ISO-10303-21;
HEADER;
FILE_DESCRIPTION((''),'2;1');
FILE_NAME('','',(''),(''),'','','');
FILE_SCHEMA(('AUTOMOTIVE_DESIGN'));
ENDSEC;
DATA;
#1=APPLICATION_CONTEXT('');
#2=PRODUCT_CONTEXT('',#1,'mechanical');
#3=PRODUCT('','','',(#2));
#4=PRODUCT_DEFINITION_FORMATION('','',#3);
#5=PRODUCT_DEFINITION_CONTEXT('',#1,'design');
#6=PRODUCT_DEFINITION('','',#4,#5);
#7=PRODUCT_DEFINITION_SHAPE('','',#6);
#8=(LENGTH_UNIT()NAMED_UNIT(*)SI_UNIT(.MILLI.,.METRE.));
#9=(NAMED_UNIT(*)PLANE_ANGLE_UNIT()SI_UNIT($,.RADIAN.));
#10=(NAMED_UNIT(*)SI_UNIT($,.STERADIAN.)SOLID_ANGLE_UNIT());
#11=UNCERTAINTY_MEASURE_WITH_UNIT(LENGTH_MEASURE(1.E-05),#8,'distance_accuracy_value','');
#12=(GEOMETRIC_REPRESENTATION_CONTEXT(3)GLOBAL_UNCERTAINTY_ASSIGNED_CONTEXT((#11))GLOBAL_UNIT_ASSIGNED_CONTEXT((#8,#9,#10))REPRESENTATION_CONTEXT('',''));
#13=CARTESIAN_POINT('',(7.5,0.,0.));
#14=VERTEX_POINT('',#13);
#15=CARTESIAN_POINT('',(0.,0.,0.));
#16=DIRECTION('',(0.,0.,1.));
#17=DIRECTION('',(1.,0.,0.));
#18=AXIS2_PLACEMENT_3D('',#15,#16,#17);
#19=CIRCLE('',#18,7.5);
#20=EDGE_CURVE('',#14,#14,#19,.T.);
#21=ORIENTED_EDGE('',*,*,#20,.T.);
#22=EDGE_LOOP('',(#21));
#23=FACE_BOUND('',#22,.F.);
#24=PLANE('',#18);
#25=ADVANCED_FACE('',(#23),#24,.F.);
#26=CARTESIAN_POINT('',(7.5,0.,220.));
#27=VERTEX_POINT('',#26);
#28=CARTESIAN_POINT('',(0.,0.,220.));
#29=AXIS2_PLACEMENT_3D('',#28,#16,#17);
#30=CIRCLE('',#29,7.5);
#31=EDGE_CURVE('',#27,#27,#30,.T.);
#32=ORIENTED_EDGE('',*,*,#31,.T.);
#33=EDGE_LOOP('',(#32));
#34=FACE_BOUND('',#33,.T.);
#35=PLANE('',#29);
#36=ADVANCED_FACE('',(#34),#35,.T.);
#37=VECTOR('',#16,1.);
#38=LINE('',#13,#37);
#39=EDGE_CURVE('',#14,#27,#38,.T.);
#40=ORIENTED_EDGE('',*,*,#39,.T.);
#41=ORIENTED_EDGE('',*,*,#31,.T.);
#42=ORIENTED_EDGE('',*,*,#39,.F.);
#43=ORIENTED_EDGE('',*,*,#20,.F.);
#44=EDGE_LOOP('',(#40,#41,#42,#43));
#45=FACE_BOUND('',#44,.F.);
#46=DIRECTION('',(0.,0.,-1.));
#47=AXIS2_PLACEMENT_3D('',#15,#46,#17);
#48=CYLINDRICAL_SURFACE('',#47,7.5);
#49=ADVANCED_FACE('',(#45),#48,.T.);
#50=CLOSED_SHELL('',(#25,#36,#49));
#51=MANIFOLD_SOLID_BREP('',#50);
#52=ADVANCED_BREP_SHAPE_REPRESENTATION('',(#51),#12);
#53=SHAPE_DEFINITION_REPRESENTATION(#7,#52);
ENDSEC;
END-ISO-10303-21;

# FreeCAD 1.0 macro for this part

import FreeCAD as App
import Part
import Sketcher

doc = App.newDocument("Part")
body = doc.addObject("PartDesign::Body", "Body")

# Sketch on XY plane
sketch1 = body.newObject("Sketcher::SketchObject", "Sketch")
sketch1.AttachmentSupport = (doc.getObject("XY_Plane"), [""])
sketch1.MapMode = "FlatFace"
sketch1.addGeometry(Part.Circle(App.Vector(0, 0, 0), App.Vector(0, 0, 1), 8), False)
sketch1.addConstraint(Sketcher.Constraint("Coincident", 0, 3, -1, 1))
sketch1.addConstraint(Sketcher.Constraint("Diameter", 0, 15.0))
pad1 = body.newObject("PartDesign::Pad", "Pad")
pad1.Profile = sketch1
pad1.Length = 220

doc.recompute()
